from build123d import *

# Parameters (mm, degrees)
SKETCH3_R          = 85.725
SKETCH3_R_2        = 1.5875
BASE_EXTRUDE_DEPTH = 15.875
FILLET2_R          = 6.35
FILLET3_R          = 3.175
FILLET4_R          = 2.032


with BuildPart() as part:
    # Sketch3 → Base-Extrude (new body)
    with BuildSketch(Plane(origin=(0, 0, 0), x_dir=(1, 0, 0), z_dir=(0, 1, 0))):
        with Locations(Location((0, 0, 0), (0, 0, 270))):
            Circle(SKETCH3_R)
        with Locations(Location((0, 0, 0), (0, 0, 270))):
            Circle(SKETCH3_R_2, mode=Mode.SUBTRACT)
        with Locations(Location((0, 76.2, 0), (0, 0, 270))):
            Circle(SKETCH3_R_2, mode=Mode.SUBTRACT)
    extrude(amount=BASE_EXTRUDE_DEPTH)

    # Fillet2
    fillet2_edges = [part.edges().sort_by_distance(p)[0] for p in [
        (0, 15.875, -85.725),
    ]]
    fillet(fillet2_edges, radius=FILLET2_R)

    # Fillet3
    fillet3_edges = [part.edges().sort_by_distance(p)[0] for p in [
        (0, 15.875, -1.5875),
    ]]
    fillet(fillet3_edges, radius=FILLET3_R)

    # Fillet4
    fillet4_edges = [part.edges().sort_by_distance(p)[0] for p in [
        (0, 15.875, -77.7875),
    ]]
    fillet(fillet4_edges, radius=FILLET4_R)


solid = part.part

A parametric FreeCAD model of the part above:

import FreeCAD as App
import Part
import Sketcher
from FreeCAD import Vector
Q = App.Units.Quantity


def edges_at(feature, points):
    """Names of the edges that pass closest to the given points."""
    edges = feature.Shape.Edges
    near = lambda p: min(range(len(edges)), key=lambda i: edges[i].distToShape(Part.Vertex(*p))[0])
    return sorted({f"Edge{near(p) + 1}" for p in points})

doc = App.newDocument("Part")
body = doc.addObject("PartDesign::Body", "Body")

sketch1 = doc.addObject("Sketcher::SketchObject", "Sketch")
body.addObject(sketch1)
sketch1.AttachmentSupport = (doc.XZ_Plane, [""])
sketch1.MapMode = "FlatFace"
sketch1.addGeometry(Part.Circle(Vector(0, 0, 0), Vector(0, 0, 1), 85.725), False)
sketch1.addGeometry(Part.Circle(Vector(0, -76.2, 0), Vector(0, 0, 1), 1.5875), False)
sketch1.addGeometry(Part.Circle(Vector(0, 0, 0), Vector(0, 0, 1), 1.5875), False)
sketch1.addConstraint(Sketcher.Constraint("Coincident", 0, 3, -1, 1))
sketch1.addConstraint(Sketcher.Constraint("Coincident", 2, 3, -1, 1))
sketch1.addConstraint(Sketcher.Constraint("Equal", 1, 2))
sketch1.addConstraint(Sketcher.Constraint("PointOnObject", 1, 3, -2))
sketch1.addConstraint(Sketcher.Constraint("Diameter", 0, Q("6.75 in")))
sketch1.addConstraint(Sketcher.Constraint("Diameter", 1, Q("0.125 in")))
sketch1.addConstraint(Sketcher.Constraint("DistanceY", 1, 3, -1, 1, Q("3 in")))
pad1 = doc.addObject("PartDesign::Pad", "Pad")
body.addObject(pad1)
pad1.Profile = sketch1
pad1.Length = Q("0.625 in")
pad1.Reversed = True
doc.recompute()

fillet = doc.addObject("PartDesign::Fillet", "Fillet")
body.addObject(fillet)
fillet.Base = (pad1, edges_at(pad1, [(0, 15.875, -85.725)]))
fillet.Radius = Q("0.25 in")
doc.recompute()

fillet2 = doc.addObject("PartDesign::Fillet", "Fillet001")
body.addObject(fillet2)
fillet2.Base = (fillet, edges_at(fillet, [(0, 15.875, -1.587)]))
fillet2.Radius = Q("0.125 in")
doc.recompute()

fillet3 = doc.addObject("PartDesign::Fillet", "Fillet002")
body.addObject(fillet3)
fillet3.Base = (fillet2, edges_at(fillet2, [(0, 15.875, -77.787)]))
fillet3.Radius = Q("0.08 in")

doc.recompute()
